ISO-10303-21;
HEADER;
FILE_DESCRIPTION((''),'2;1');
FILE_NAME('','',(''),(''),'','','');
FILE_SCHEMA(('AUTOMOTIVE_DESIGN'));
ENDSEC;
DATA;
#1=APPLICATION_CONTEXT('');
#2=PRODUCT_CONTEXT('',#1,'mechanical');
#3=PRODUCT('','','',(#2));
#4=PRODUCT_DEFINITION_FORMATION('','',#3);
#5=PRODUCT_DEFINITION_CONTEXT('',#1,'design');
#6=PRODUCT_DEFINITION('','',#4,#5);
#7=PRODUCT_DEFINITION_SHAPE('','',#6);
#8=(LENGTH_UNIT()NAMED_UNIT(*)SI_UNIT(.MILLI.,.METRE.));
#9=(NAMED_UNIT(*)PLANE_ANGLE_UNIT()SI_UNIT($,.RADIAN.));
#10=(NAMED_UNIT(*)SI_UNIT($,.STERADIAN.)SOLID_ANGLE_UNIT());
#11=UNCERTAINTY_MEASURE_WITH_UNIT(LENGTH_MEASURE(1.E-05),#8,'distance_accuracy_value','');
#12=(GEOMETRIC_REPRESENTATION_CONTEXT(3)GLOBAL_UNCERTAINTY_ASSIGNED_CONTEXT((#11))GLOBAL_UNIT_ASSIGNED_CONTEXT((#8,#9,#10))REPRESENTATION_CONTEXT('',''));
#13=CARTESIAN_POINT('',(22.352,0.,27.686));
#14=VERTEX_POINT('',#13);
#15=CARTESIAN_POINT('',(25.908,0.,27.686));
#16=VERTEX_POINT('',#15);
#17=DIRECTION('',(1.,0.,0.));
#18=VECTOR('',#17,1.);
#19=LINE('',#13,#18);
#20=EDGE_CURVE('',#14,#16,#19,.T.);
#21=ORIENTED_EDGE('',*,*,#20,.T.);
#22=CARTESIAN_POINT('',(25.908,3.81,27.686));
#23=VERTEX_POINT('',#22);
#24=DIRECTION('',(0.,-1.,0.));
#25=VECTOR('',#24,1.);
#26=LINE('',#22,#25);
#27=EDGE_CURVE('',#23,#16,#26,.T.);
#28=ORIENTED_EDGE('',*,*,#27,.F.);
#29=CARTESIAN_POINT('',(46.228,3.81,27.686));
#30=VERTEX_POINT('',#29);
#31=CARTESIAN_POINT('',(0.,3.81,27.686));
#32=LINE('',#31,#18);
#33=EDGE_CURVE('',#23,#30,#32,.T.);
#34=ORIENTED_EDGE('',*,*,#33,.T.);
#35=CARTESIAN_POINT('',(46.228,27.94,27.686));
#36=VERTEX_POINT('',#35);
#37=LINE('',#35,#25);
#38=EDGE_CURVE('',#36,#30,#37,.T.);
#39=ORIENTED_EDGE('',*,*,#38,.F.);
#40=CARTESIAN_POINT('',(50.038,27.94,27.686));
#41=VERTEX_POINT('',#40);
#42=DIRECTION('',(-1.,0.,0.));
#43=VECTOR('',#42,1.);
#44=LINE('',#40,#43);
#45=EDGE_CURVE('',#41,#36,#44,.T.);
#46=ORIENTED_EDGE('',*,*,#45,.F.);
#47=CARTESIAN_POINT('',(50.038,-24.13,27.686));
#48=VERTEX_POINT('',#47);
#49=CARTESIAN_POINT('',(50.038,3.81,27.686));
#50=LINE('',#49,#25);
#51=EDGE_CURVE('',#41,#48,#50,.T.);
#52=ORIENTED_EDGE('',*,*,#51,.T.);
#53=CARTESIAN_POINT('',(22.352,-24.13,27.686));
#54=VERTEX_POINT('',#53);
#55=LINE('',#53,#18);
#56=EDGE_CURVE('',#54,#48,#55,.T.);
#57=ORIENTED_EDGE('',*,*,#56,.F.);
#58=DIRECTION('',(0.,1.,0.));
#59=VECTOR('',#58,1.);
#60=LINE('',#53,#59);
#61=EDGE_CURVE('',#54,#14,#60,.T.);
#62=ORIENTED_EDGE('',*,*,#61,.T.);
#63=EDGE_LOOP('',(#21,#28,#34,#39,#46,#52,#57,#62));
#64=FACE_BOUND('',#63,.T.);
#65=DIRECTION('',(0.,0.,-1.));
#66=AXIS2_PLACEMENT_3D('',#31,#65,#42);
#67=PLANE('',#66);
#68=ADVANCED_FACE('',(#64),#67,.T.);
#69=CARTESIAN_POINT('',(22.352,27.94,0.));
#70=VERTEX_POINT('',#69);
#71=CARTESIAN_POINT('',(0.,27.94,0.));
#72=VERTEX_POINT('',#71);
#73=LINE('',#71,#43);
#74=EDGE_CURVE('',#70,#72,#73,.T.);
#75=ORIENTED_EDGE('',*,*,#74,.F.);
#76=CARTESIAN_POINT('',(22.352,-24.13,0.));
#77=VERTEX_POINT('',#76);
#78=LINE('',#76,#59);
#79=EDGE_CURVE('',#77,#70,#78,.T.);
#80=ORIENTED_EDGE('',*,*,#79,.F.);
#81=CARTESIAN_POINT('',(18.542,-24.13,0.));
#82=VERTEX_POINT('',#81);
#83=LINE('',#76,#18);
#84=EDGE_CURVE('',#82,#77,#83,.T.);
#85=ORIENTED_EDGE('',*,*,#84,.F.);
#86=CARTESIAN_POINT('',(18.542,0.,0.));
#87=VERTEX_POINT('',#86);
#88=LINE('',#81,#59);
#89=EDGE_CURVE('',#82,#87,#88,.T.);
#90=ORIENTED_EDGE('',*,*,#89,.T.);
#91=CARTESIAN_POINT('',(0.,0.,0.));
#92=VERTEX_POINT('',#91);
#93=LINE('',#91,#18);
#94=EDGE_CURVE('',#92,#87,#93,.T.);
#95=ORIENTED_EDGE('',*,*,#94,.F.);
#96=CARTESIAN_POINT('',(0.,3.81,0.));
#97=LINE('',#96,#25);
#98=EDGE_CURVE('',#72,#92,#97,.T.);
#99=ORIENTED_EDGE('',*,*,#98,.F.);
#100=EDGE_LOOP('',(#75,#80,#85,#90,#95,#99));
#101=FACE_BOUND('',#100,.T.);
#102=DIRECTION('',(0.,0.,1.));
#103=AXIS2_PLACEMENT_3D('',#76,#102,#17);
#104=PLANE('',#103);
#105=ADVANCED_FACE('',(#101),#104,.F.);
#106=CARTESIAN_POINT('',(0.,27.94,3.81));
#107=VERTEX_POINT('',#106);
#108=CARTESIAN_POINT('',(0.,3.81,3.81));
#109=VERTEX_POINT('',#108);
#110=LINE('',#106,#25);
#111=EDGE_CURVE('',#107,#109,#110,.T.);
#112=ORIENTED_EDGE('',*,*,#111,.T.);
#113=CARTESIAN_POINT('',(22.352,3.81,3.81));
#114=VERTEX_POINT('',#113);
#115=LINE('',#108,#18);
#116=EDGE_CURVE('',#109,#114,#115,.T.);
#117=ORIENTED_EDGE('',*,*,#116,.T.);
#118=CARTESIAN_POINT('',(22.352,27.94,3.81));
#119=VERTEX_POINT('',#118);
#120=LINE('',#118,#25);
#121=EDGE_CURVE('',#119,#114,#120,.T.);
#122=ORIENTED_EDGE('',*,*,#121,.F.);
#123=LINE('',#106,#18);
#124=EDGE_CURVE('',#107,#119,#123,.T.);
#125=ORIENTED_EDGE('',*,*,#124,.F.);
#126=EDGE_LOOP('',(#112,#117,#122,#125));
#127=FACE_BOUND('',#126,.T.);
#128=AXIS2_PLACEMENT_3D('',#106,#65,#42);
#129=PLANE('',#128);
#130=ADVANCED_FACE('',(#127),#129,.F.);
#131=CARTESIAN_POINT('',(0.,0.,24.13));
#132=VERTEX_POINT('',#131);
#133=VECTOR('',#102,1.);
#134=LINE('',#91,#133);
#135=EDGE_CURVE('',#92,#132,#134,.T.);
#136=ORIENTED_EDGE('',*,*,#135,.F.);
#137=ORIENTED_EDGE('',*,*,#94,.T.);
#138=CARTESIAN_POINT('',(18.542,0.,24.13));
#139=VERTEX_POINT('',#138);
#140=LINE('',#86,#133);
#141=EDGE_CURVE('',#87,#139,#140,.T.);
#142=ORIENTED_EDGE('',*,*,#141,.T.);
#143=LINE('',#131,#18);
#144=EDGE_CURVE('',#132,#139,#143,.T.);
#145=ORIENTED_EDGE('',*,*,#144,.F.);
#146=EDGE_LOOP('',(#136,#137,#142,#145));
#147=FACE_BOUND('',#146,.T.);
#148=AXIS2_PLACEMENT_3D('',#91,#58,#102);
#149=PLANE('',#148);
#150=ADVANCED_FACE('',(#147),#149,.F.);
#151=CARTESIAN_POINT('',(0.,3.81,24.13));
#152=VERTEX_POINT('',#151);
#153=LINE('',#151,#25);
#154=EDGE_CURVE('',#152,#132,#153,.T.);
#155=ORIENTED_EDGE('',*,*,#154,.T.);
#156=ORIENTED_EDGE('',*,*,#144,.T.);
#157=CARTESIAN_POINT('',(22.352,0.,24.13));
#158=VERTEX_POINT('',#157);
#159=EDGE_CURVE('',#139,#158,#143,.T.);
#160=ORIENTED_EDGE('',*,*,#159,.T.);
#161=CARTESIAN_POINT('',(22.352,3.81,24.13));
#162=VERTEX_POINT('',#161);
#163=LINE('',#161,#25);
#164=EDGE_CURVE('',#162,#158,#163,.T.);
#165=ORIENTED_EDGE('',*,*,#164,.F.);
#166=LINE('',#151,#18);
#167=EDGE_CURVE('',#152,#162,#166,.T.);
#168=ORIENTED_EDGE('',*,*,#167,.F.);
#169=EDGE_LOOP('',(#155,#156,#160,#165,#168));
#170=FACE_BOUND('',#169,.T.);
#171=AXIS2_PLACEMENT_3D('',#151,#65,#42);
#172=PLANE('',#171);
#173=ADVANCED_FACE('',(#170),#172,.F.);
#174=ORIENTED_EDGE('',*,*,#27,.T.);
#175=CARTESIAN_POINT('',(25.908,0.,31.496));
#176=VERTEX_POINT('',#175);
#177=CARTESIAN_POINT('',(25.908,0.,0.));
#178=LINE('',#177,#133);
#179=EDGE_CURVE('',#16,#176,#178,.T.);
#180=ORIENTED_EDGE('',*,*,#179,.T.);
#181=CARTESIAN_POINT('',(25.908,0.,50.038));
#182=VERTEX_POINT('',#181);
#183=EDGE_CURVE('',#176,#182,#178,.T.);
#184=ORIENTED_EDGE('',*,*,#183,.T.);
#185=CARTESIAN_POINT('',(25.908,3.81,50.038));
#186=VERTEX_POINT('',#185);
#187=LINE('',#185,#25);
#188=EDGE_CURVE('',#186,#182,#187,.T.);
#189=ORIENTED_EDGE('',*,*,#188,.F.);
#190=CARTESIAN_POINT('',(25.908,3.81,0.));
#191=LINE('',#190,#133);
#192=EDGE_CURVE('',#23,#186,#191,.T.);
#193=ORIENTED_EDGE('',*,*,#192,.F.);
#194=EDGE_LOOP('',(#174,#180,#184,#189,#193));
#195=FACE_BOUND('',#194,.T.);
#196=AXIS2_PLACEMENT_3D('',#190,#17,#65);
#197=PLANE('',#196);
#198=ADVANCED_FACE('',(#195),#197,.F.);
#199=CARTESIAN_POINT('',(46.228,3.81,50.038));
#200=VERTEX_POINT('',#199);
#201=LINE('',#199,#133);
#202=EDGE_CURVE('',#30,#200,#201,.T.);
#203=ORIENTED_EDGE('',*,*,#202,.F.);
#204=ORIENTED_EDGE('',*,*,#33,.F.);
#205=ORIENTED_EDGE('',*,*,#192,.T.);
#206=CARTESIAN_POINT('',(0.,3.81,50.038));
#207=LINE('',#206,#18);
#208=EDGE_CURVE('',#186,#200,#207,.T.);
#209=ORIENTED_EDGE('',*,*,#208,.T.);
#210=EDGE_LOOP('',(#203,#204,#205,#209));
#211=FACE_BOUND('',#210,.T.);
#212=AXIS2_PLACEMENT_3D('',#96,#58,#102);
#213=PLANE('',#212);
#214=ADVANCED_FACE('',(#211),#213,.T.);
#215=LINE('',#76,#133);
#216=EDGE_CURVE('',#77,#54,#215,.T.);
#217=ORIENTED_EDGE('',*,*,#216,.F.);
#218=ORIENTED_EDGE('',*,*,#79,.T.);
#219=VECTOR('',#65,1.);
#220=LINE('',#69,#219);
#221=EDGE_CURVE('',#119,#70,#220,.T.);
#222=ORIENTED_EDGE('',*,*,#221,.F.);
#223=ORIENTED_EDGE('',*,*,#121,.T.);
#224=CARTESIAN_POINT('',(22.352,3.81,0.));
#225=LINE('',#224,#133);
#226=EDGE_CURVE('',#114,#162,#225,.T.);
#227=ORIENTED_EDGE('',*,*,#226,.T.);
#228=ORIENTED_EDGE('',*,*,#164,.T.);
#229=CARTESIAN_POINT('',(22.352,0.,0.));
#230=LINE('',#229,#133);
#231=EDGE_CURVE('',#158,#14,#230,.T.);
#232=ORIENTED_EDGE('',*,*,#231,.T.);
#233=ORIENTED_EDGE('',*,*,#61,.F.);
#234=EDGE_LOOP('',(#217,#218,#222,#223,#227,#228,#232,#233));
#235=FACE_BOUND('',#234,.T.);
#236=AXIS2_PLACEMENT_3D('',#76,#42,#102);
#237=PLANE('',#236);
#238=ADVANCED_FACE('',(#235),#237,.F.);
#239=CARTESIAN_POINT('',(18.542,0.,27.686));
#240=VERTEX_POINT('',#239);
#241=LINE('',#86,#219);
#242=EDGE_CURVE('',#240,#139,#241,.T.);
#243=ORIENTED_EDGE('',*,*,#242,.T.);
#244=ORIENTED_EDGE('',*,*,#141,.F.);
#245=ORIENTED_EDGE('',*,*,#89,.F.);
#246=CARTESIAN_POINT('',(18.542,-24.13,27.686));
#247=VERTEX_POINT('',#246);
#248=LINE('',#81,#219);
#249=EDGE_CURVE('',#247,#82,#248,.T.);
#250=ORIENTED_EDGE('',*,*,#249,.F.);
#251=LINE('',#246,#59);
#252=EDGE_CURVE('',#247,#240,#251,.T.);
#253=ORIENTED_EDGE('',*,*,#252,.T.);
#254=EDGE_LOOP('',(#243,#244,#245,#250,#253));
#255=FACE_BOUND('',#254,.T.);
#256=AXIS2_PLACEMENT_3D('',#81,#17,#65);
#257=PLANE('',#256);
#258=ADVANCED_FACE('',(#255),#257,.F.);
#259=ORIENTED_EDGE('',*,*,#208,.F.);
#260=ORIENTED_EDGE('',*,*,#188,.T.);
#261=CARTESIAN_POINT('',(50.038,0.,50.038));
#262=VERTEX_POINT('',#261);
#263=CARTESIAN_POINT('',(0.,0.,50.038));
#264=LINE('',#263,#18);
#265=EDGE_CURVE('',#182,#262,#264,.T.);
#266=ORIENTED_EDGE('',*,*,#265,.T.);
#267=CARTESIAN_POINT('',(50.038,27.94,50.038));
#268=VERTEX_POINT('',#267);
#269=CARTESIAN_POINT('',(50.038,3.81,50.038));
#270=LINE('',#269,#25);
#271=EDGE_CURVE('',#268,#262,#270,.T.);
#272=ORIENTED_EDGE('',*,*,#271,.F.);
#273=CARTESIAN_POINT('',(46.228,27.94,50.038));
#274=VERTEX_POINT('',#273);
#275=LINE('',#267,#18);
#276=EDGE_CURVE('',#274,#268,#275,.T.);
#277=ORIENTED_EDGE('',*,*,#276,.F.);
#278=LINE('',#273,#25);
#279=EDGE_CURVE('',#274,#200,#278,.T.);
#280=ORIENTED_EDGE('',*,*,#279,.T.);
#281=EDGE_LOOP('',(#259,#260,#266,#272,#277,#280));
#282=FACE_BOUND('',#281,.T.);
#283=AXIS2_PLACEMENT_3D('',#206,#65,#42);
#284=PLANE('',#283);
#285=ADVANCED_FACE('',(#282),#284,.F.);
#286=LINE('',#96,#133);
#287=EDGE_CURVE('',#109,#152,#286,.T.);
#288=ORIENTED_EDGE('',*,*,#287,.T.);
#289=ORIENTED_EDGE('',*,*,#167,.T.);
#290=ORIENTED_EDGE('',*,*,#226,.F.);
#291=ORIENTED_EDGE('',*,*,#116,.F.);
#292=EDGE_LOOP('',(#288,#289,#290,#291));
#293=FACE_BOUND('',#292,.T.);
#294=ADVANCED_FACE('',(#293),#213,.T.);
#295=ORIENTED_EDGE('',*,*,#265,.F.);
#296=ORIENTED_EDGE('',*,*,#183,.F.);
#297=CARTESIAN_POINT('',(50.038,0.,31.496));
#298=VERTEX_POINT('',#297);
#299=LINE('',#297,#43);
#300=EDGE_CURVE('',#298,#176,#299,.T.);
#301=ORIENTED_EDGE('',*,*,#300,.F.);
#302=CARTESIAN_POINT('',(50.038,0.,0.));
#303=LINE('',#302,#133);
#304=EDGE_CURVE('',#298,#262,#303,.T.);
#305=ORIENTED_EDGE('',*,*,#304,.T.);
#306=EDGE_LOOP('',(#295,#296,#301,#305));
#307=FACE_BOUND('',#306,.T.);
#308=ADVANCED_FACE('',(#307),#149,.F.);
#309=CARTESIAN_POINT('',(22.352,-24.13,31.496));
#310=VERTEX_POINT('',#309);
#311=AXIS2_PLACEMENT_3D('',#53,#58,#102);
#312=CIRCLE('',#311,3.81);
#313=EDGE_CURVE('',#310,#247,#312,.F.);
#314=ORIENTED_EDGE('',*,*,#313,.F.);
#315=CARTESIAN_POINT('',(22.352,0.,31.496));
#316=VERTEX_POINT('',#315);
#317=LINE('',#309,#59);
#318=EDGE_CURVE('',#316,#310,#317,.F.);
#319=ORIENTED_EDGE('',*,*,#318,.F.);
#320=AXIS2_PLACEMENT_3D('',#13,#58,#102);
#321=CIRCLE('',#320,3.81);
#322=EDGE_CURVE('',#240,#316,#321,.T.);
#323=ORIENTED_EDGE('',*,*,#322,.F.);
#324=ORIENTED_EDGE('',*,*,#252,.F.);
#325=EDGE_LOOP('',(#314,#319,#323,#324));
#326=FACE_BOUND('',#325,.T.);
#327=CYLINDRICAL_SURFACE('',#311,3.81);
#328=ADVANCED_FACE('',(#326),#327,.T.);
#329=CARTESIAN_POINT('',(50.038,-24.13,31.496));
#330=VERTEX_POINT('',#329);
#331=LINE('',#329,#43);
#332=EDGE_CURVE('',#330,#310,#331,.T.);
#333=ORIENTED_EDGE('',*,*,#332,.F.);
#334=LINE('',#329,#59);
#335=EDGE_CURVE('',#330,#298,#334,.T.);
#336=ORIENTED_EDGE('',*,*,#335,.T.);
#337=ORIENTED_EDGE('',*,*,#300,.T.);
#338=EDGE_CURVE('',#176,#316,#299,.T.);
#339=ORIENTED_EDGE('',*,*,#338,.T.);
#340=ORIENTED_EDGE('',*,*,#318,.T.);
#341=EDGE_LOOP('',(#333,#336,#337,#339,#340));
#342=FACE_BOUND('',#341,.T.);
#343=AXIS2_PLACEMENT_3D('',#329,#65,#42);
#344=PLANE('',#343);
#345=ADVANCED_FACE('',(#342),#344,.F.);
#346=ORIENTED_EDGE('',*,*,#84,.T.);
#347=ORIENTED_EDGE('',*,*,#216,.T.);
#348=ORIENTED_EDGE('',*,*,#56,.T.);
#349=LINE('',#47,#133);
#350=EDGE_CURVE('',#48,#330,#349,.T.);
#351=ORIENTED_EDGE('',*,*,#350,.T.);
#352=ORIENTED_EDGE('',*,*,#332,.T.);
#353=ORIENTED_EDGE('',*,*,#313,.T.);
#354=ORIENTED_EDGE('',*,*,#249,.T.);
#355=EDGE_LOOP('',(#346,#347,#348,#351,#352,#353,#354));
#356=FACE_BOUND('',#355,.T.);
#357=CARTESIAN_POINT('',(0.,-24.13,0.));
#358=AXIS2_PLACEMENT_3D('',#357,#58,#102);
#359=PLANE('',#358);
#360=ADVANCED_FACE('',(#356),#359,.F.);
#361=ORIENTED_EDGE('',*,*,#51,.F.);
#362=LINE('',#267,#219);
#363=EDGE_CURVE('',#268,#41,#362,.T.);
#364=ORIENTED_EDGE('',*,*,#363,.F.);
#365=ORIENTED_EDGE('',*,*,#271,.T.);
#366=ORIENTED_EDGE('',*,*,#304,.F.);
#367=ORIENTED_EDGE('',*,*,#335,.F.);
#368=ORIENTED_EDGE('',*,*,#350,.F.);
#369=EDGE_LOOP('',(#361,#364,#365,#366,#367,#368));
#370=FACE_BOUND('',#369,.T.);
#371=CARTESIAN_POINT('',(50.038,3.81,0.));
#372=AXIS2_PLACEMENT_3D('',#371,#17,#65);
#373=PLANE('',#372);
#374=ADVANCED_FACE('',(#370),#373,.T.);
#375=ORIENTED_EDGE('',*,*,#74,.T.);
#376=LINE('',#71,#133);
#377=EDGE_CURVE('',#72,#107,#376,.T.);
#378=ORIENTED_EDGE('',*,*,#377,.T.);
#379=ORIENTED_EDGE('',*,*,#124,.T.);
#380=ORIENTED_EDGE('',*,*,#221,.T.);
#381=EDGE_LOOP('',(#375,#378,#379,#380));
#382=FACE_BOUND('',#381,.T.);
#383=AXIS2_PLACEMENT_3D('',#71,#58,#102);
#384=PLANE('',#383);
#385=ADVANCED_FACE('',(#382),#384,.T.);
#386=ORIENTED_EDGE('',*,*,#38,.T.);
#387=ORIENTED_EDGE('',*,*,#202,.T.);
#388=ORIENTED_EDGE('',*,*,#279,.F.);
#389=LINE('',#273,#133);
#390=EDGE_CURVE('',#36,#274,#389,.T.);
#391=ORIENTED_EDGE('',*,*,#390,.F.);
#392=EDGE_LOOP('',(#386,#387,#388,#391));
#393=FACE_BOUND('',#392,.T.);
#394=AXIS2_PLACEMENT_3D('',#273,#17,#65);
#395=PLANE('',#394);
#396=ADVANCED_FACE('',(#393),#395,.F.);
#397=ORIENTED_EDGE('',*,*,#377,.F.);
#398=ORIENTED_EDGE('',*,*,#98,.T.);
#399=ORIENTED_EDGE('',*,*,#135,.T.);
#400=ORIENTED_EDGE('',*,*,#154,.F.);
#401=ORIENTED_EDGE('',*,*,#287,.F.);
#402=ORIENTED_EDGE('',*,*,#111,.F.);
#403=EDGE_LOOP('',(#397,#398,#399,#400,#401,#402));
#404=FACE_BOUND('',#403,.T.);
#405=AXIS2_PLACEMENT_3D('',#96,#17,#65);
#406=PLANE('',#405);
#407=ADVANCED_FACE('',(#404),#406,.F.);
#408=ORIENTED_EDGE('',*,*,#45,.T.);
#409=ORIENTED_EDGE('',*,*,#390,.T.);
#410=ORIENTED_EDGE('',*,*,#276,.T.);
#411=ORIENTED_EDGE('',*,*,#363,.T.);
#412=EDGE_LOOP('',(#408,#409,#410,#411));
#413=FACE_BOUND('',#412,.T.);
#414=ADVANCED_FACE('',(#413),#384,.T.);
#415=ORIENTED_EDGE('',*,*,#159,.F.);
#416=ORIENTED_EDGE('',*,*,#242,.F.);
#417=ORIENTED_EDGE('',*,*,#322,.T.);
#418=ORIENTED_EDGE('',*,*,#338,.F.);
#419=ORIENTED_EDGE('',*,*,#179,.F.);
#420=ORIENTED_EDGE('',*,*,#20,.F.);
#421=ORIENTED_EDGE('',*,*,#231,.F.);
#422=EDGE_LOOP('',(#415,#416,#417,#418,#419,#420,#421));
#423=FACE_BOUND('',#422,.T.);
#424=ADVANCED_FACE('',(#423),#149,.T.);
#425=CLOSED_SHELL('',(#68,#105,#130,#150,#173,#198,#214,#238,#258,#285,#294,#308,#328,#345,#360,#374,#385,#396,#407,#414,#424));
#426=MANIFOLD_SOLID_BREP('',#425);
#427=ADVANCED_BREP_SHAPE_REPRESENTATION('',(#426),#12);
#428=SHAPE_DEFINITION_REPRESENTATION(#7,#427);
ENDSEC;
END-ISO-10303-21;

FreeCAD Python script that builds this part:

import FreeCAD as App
import Part
import Sketcher
Q = App.Units.Quantity


def edges_at(feature, points):
    """Names of the edges that pass closest to the given points."""
    edges = feature.Shape.Edges
    near = lambda p: min(range(len(edges)), key=lambda i: edges[i].distToShape(Part.Vertex(*p))[0])
    return sorted({f"Edge{near(p) + 1}" for p in points})


def add_polygon(sketch, points):
    """Adds a closed chain of lines whose ends are joined by coincident constraints."""
    first, n = sketch.GeometryCount, len(points)
    for a, b in zip(points, points[1:] + points[:1]):
        sketch.addGeometry(Part.LineSegment(App.Vector(*a, 0), App.Vector(*b, 0)), False)
    for i in range(n):
        sketch.addConstraint(Sketcher.Constraint("Coincident", first + i, 2, first + (i + 1) % n, 1))

doc = App.newDocument("Part")
body = doc.addObject("PartDesign::Body", "Body")

sketch1 = doc.addObject("Sketcher::SketchObject", "Sketch")
body.addObject(sketch1)
sketch1.AttachmentSupport = (doc.XZ_Plane, [""])
sketch1.MapMode = "FlatFace"
add_polygon(sketch1, [(26, 28), (26, 50), (50, 50), (50, 28)])
sketch1.addConstraint(Sketcher.Constraint("Vertical", 0))
sketch1.addConstraint(Sketcher.Constraint("Horizontal", 1))
sketch1.addConstraint(Sketcher.Constraint("Vertical", 2))
sketch1.addConstraint(Sketcher.Constraint("Horizontal", 3))
sketch1.addConstraint(Sketcher.Constraint("DistanceX", 1, 1, 1, 2, Q("0.95 in")))
sketch1.addConstraint(Sketcher.Constraint("DistanceY", 0, 1, 0, 2, Q("0.88 in")))
sketch1.addConstraint(Sketcher.Constraint("DistanceX", -1, 1, 0, 2, Q("1.02 in")))
sketch1.addConstraint(Sketcher.Constraint("DistanceY", -1, 1, 0, 2, Q("1.97 in")))
pad1 = doc.addObject("PartDesign::Pad", "Pad")
body.addObject(pad1)
pad1.Profile = sketch1
pad1.Length = Q("0.15 in")
pad1.Reversed = True
body2 = doc.addObject("PartDesign::Body", "Body001")

sketch2 = doc.addObject("Sketcher::SketchObject", "Sketch001")
body2.addObject(sketch2)
sketch2.AttachmentSupport = (doc.getObject("XZ_Plane001"), [""])
sketch2.MapMode = "FlatFace"
add_polygon(sketch2, [(0, 0), (0, 24), (22, 24), (22, 0)])
sketch2.addConstraint(Sketcher.Constraint("Vertical", 0))
sketch2.addConstraint(Sketcher.Constraint("Horizontal", 1))
sketch2.addConstraint(Sketcher.Constraint("Vertical", 2))
sketch2.addConstraint(Sketcher.Constraint("Horizontal", 3))
sketch2.addConstraint(Sketcher.Constraint("Coincident", 3, 2, -1, 1))
sketch2.addConstraint(Sketcher.Constraint("DistanceX", 1, 1, 1, 2, Q("0.88 in")))
sketch2.addConstraint(Sketcher.Constraint("DistanceY", 0, 1, 0, 2, Q("0.95 in")))
pad2 = doc.addObject("PartDesign::Pad", "Pad001")
body2.addObject(pad2)
pad2.Profile = sketch2
pad2.Length = Q("0.15 in")
pad2.Reversed = True
body.AllowCompound = True
doc.recompute()

boolean = doc.addObject("PartDesign::Boolean", "Boolean")
body.addObject(boolean)
boolean.Type = "Fuse"
boolean.addObjects([body2])

sketch3 = doc.addObject("Sketcher::SketchObject", "Sketch002")
body.addObject(sketch3)
sketch3.AttachmentSupport = (doc.XZ_Plane, [""])
sketch3.MapMode = "FlatFace"
sketch3.AttachmentOffset = App.Placement(App.Vector(0, 0, -0.15 * 25.4), App.Rotation())
add_polygon(sketch3, [(0, 0), (0, 3.8), (22.4, 3.8), (22.4, 0)])
add_polygon(sketch3, [(46.2, 27.7), (46.2, 50), (50, 50), (50, 27.7)])
sketch3.addConstraint(Sketcher.Constraint("Vertical", 0))
sketch3.addConstraint(Sketcher.Constraint("Horizontal", 1))
sketch3.addConstraint(Sketcher.Constraint("Vertical", 2))
sketch3.addConstraint(Sketcher.Constraint("Horizontal", 3))
sketch3.addConstraint(Sketcher.Constraint("Vertical", 4))
sketch3.addConstraint(Sketcher.Constraint("Horizontal", 5))
sketch3.addConstraint(Sketcher.Constraint("Vertical", 6))
sketch3.addConstraint(Sketcher.Constraint("Horizontal", 7))
sketch3.addConstraint(Sketcher.Constraint("Coincident", 3, 2, -1, 1))
sketch3.addConstraint(Sketcher.Constraint("Equal", 7, 0))
sketch3.addConstraint(Sketcher.Constraint("Equal", 3, 4))
sketch3.addConstraint(Sketcher.Constraint("DistanceX", 1, 1, 1, 2, Q("0.88 in")))
sketch3.addConstraint(Sketcher.Constraint("DistanceX", 5, 1, 5, 2, Q("0.15 in")))
sketch3.addConstraint(Sketcher.Constraint("DistanceX", -1, 1, 4, 2, Q("1.82 in")))
sketch3.addConstraint(Sketcher.Constraint("DistanceY", -1, 1, 4, 2, Q("1.97 in")))
pad3 = doc.addObject("PartDesign::Pad", "Pad002")
body.addObject(pad3)
pad3.Profile = sketch3
pad3.Length = Q("0.95 in")
pad3.Reversed = True

sketch4 = doc.addObject("Sketcher::SketchObject", "Sketch003")
body.addObject(sketch4)
sketch4.AttachmentSupport = (doc.XZ_Plane, [""])
sketch4.MapMode = "FlatFace"
add_polygon(sketch4, [(22.4, 27.7), (50, 27.7), (50, 31.5), (18.5, 31.5), (18.5, 0), (22.4, 0)])
sketch4.addConstraint(Sketcher.Constraint("Horizontal", 0))
sketch4.addConstraint(Sketcher.Constraint("Vertical", 1))
sketch4.addConstraint(Sketcher.Constraint("Horizontal", 2))
sketch4.addConstraint(Sketcher.Constraint("Vertical", 3))
sketch4.addConstraint(Sketcher.Constraint("Horizontal", 4))
sketch4.addConstraint(Sketcher.Constraint("Vertical", 5))
sketch4.addConstraint(Sketcher.Constraint("PointOnObject", 3, 2, -1))
sketch4.addConstraint(Sketcher.Constraint("Equal", 4, 1))
sketch4.addConstraint(Sketcher.Constraint("Equal", 2, 3))
sketch4.addConstraint(Sketcher.Constraint("DistanceX", 0, 1, 0, 2, Q("1.09 in")))
sketch4.addConstraint(Sketcher.Constraint("DistanceX", 2, 2, 2, 1, Q("1.24 in")))
sketch4.addConstraint(Sketcher.Constraint("DistanceX", -1, 1, 0, 2, Q("1.97 in")))
pad4 = doc.addObject("PartDesign::Pad", "Pad003")
body.addObject(pad4)
pad4.Profile = sketch4
pad4.Length = Q("0.95 in")
doc.recompute()

fillet = doc.addObject("PartDesign::Fillet", "Fillet")
body.addObject(fillet)
fillet.Base = (pad4, edges_at(pad4, [(18.542, -12.065, 31.496)]))
fillet.Radius = Q("0.15 in")

doc.recompute()
